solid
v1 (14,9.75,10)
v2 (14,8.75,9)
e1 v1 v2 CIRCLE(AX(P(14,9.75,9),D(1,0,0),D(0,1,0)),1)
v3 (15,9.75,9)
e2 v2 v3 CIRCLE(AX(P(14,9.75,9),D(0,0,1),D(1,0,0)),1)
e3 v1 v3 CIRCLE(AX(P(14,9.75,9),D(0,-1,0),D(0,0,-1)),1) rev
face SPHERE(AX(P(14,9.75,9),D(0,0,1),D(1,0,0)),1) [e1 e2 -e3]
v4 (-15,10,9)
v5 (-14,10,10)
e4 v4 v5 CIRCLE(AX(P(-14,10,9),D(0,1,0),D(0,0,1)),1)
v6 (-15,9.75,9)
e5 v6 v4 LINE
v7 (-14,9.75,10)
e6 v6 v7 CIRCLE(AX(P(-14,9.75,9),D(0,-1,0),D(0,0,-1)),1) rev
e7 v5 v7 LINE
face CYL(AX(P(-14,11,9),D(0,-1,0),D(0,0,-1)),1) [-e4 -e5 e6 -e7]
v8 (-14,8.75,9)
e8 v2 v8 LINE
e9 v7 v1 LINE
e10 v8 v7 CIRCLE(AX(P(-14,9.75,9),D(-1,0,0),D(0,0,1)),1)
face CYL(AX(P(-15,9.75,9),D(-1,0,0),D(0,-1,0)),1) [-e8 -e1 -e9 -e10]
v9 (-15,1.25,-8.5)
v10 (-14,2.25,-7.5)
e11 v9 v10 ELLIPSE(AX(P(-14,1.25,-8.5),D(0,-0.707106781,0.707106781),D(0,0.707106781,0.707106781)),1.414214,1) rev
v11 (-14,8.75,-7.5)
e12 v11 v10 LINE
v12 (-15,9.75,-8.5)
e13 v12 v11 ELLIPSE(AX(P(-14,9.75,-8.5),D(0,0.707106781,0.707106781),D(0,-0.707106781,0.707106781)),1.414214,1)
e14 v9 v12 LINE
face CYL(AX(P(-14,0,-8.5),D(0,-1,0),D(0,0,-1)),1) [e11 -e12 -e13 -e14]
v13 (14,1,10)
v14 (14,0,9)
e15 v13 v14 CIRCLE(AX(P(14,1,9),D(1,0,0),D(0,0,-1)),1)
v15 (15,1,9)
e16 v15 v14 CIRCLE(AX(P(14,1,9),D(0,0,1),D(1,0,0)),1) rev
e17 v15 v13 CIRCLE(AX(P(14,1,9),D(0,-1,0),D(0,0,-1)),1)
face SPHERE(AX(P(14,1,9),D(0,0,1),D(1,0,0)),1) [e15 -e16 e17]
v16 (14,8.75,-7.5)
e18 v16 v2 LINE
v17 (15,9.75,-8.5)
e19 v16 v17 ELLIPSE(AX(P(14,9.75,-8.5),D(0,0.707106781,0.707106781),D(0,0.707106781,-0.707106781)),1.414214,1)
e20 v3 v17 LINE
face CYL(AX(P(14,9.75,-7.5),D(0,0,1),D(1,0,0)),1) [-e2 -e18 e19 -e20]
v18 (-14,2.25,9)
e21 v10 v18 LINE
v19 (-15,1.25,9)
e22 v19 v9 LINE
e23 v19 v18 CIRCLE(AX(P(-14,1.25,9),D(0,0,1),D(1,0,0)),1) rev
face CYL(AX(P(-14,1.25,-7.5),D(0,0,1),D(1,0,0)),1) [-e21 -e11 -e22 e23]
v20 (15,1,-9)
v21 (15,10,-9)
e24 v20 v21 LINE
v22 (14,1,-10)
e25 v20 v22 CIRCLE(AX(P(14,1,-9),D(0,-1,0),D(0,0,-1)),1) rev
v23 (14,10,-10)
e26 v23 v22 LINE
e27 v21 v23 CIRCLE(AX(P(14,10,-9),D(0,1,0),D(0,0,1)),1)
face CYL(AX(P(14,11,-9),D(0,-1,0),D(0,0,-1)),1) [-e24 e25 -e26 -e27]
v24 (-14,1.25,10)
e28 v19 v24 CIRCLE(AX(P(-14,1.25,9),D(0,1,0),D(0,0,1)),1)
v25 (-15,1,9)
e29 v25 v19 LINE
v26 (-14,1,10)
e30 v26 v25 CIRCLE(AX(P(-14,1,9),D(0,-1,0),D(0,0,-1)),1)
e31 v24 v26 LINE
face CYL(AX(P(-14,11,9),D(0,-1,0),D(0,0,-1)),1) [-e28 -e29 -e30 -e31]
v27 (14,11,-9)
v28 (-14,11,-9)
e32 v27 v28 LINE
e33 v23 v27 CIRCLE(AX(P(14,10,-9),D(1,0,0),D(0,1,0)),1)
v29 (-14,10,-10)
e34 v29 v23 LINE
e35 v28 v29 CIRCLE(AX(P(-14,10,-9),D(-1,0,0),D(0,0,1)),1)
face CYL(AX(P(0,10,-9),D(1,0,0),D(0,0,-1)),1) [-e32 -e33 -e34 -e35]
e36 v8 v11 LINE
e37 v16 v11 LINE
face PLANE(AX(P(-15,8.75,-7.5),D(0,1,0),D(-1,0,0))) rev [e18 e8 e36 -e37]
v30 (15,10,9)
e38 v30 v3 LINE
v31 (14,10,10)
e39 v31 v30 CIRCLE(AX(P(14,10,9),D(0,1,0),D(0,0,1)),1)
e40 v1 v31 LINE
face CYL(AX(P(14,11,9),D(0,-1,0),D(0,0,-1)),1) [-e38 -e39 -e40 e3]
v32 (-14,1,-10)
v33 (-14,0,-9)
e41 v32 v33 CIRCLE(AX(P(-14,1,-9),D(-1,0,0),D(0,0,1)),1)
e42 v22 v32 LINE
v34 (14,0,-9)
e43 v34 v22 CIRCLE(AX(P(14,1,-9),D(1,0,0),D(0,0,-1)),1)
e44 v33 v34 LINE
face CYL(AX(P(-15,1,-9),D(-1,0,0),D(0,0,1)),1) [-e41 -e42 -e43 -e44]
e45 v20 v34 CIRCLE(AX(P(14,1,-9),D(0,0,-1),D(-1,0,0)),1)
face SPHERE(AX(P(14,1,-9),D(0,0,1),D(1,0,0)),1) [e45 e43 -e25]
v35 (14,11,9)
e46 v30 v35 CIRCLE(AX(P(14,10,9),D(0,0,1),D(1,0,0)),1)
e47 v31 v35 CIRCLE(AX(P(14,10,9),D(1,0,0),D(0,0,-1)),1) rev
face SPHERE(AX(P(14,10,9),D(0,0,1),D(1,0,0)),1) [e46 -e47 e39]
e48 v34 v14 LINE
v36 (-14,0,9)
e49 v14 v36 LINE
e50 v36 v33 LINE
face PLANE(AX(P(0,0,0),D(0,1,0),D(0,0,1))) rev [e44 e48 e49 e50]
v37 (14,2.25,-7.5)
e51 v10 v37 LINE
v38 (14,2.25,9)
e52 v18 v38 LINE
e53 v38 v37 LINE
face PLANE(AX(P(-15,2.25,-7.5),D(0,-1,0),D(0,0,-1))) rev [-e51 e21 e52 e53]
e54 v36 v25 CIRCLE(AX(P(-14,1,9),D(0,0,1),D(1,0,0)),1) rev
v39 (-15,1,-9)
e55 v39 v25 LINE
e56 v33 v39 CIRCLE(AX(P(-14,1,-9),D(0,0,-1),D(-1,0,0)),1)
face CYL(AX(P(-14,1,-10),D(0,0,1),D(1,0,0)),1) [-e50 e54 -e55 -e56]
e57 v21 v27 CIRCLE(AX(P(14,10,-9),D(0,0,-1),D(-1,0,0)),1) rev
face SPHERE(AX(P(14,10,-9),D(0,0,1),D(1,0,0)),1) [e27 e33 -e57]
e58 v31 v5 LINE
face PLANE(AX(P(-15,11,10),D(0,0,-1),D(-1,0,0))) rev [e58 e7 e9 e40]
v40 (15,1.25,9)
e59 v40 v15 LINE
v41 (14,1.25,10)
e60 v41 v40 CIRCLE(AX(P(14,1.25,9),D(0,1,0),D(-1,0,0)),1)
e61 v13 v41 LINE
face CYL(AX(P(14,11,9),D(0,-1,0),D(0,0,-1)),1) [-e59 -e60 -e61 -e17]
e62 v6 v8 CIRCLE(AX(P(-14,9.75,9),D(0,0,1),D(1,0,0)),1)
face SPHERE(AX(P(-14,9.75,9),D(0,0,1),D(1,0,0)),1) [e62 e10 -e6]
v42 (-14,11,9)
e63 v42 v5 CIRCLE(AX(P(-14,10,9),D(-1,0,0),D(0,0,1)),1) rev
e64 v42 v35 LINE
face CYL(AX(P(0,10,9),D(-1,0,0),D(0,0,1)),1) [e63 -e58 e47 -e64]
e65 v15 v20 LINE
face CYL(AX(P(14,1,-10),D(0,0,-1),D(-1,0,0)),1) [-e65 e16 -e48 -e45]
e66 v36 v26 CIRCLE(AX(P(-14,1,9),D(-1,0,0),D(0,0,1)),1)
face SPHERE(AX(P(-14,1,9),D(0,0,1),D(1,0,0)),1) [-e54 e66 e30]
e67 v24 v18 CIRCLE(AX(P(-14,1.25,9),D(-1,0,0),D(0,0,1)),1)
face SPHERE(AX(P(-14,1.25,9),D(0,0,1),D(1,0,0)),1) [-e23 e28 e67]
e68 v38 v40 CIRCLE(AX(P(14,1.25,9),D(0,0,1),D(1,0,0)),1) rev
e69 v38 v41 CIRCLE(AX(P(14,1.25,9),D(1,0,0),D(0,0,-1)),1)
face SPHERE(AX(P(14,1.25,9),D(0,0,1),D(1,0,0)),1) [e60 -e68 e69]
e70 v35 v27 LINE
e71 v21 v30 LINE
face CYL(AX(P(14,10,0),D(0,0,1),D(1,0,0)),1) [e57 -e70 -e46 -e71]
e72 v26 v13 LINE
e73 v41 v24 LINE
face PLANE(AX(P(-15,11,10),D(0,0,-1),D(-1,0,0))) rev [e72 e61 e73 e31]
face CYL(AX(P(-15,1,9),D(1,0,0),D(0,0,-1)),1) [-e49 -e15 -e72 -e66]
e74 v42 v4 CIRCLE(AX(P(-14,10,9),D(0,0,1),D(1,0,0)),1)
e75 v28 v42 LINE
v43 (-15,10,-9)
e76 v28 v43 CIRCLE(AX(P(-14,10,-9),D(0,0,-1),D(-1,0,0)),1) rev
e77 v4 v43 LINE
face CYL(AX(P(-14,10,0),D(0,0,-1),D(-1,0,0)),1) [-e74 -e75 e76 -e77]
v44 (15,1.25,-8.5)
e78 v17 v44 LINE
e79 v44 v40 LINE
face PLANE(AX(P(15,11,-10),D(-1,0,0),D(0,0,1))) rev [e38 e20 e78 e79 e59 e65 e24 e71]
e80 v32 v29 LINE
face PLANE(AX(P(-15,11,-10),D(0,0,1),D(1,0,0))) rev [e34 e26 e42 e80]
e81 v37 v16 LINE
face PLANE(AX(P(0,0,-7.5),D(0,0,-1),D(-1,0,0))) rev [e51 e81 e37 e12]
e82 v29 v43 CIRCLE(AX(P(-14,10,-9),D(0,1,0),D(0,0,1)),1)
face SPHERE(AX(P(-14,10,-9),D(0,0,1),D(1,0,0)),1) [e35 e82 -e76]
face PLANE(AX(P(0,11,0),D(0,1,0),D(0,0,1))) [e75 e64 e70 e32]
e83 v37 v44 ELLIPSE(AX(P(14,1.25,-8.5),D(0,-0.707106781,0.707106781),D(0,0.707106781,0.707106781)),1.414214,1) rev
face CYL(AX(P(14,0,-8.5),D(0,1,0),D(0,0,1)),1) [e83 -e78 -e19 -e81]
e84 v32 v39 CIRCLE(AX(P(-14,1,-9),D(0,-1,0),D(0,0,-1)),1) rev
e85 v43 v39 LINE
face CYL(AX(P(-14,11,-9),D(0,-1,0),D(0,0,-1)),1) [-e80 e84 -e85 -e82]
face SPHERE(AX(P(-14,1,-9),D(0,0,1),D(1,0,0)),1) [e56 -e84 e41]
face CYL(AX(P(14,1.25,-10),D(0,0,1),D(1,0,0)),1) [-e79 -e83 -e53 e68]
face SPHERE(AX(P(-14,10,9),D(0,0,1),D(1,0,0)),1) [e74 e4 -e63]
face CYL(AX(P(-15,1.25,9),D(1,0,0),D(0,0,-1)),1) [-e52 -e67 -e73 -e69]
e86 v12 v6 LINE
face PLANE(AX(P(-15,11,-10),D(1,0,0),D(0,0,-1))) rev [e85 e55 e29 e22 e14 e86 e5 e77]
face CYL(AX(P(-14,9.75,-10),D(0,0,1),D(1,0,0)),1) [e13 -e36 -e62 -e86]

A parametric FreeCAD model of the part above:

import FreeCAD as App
import Part
import Sketcher

V = App.Vector


def edges_at(feature, points):
    """Names of the edges that pass closest to the given points."""
    edges = feature.Shape.Edges
    near = lambda p: min(range(len(edges)), key=lambda i: edges[i].distToShape(Part.Vertex(*p))[0])
    return sorted({f"Edge{near(p) + 1}" for p in points})

doc = App.newDocument("Part")
body = doc.addObject("PartDesign::Body", "Body")

# Sketch on XZ plane
sketch1 = body.newObject("Sketcher::SketchObject", "Sketch")
sketch1.AttachmentSupport = (doc.getObject("XZ_Plane"), [""])
sketch1.MapMode = "FlatFace"
sketch1.addGeometry([
    Part.LineSegment(V(-15, -10, 0), V(-15, 10, 0)),
    Part.LineSegment(V(-15, 10, 0), V(15, 10, 0)),
    Part.LineSegment(V(15, 10, 0), V(15, -10, 0)),
    Part.LineSegment(V(15, -10, 0), V(-15, -10, 0)),
], False)
sketch1.addConstraint([
    Sketcher.Constraint("Coincident", 0, 2, 1, 1),
    Sketcher.Constraint("Coincident", 1, 2, 2, 1),
    Sketcher.Constraint("Coincident", 2, 2, 3, 1),
    Sketcher.Constraint("Coincident", 3, 2, 0, 1),
    Sketcher.Constraint("Vertical", 0),
    Sketcher.Constraint("Horizontal", 1),
    Sketcher.Constraint("Vertical", 2),
    Sketcher.Constraint("Horizontal", 3),
    Sketcher.Constraint("Symmetric", 0, 2, 2, 2, -1, 1),
    Sketcher.Constraint("DistanceX", 1, 1, 1, 2, 30.0),
    Sketcher.Constraint("DistanceY", 0, 1, 0, 2, 20.0),
])
pad1 = body.newObject("PartDesign::Pad", "Pad")
pad1.Profile = sketch1
pad1.Length = 11
pad1.Reversed = True

# Sketch on XY plane
sketch2 = body.newObject("Sketcher::SketchObject", "Sketch001")
sketch2.AttachmentSupport = (doc.getObject("XY_Plane"), [""])
sketch2.MapMode = "FlatFace"
sketch2.AttachmentOffset = App.Placement(V(0, 0, 10), App.Rotation())
sketch2.addGeometry([
    Part.LineSegment(V(-15, 9, 0), V(-15, 2, 0)),
    Part.LineSegment(V(-15, 2, 0), V(15, 2, 0)),
    Part.LineSegment(V(15, 2, 0), V(15, 9, 0)),
    Part.LineSegment(V(15, 9, 0), V(-15, 9, 0)),
], False)
sketch2.addConstraint([
    Sketcher.Constraint("Coincident", 0, 2, 1, 1),
    Sketcher.Constraint("Coincident", 1, 2, 2, 1),
    Sketcher.Constraint("Coincident", 2, 2, 3, 1),
    Sketcher.Constraint("Coincident", 3, 2, 0, 1),
    Sketcher.Constraint("Vertical", 0),
    Sketcher.Constraint("Horizontal", 1),
    Sketcher.Constraint("Vertical", 2),
    Sketcher.Constraint("Horizontal", 3),
    Sketcher.Constraint("DistanceX", 1, 1, 1, 2, 30.0),
    Sketcher.Constraint("DistanceY", 0, 2, 0, 1, 6.5),
    Sketcher.Constraint("DistanceX", 0, 2, -1, 1, 15.0),
    Sketcher.Constraint("DistanceY", -1, 1, 0, 2, 2.25),
])
pocket1 = body.newObject("PartDesign::Pocket", "Pocket")
pocket1.Profile = sketch2
pocket1.Length = 17.5
doc.recompute()

fillet = body.newObject("PartDesign::Fillet", "Fillet")
fillet.Base = (pocket1, edges_at(pocket1, [
    (-15, 11, 0),
    (0, 11, 10),
    (15, 1.125, 10),
    (-15, 1.125, 10),
    (-15, 8.75, 1.25),
    (15, 5.5, -7.5),
    (15, 8.75, 1.25),
    (15, 2.25, 1.25),
    (-15, 5.5, -7.5),
    (-15, 2.25, 1.25),
    (0, 8.75, 10),
    (0, 2.25, 10),
    (15, 11, 0),
    (0, 0, 10),
    (-15, 0, 0),
    (0, 0, -10),
    (15, 0, 0),
    (0, 11, -10),
    (15, 9.875, 10),
    (-15, 9.875, 10),
    (-15, 5.5, -10),
    (15, 5.5, -10),
]))
fillet.Radius = 1

doc.recompute()
